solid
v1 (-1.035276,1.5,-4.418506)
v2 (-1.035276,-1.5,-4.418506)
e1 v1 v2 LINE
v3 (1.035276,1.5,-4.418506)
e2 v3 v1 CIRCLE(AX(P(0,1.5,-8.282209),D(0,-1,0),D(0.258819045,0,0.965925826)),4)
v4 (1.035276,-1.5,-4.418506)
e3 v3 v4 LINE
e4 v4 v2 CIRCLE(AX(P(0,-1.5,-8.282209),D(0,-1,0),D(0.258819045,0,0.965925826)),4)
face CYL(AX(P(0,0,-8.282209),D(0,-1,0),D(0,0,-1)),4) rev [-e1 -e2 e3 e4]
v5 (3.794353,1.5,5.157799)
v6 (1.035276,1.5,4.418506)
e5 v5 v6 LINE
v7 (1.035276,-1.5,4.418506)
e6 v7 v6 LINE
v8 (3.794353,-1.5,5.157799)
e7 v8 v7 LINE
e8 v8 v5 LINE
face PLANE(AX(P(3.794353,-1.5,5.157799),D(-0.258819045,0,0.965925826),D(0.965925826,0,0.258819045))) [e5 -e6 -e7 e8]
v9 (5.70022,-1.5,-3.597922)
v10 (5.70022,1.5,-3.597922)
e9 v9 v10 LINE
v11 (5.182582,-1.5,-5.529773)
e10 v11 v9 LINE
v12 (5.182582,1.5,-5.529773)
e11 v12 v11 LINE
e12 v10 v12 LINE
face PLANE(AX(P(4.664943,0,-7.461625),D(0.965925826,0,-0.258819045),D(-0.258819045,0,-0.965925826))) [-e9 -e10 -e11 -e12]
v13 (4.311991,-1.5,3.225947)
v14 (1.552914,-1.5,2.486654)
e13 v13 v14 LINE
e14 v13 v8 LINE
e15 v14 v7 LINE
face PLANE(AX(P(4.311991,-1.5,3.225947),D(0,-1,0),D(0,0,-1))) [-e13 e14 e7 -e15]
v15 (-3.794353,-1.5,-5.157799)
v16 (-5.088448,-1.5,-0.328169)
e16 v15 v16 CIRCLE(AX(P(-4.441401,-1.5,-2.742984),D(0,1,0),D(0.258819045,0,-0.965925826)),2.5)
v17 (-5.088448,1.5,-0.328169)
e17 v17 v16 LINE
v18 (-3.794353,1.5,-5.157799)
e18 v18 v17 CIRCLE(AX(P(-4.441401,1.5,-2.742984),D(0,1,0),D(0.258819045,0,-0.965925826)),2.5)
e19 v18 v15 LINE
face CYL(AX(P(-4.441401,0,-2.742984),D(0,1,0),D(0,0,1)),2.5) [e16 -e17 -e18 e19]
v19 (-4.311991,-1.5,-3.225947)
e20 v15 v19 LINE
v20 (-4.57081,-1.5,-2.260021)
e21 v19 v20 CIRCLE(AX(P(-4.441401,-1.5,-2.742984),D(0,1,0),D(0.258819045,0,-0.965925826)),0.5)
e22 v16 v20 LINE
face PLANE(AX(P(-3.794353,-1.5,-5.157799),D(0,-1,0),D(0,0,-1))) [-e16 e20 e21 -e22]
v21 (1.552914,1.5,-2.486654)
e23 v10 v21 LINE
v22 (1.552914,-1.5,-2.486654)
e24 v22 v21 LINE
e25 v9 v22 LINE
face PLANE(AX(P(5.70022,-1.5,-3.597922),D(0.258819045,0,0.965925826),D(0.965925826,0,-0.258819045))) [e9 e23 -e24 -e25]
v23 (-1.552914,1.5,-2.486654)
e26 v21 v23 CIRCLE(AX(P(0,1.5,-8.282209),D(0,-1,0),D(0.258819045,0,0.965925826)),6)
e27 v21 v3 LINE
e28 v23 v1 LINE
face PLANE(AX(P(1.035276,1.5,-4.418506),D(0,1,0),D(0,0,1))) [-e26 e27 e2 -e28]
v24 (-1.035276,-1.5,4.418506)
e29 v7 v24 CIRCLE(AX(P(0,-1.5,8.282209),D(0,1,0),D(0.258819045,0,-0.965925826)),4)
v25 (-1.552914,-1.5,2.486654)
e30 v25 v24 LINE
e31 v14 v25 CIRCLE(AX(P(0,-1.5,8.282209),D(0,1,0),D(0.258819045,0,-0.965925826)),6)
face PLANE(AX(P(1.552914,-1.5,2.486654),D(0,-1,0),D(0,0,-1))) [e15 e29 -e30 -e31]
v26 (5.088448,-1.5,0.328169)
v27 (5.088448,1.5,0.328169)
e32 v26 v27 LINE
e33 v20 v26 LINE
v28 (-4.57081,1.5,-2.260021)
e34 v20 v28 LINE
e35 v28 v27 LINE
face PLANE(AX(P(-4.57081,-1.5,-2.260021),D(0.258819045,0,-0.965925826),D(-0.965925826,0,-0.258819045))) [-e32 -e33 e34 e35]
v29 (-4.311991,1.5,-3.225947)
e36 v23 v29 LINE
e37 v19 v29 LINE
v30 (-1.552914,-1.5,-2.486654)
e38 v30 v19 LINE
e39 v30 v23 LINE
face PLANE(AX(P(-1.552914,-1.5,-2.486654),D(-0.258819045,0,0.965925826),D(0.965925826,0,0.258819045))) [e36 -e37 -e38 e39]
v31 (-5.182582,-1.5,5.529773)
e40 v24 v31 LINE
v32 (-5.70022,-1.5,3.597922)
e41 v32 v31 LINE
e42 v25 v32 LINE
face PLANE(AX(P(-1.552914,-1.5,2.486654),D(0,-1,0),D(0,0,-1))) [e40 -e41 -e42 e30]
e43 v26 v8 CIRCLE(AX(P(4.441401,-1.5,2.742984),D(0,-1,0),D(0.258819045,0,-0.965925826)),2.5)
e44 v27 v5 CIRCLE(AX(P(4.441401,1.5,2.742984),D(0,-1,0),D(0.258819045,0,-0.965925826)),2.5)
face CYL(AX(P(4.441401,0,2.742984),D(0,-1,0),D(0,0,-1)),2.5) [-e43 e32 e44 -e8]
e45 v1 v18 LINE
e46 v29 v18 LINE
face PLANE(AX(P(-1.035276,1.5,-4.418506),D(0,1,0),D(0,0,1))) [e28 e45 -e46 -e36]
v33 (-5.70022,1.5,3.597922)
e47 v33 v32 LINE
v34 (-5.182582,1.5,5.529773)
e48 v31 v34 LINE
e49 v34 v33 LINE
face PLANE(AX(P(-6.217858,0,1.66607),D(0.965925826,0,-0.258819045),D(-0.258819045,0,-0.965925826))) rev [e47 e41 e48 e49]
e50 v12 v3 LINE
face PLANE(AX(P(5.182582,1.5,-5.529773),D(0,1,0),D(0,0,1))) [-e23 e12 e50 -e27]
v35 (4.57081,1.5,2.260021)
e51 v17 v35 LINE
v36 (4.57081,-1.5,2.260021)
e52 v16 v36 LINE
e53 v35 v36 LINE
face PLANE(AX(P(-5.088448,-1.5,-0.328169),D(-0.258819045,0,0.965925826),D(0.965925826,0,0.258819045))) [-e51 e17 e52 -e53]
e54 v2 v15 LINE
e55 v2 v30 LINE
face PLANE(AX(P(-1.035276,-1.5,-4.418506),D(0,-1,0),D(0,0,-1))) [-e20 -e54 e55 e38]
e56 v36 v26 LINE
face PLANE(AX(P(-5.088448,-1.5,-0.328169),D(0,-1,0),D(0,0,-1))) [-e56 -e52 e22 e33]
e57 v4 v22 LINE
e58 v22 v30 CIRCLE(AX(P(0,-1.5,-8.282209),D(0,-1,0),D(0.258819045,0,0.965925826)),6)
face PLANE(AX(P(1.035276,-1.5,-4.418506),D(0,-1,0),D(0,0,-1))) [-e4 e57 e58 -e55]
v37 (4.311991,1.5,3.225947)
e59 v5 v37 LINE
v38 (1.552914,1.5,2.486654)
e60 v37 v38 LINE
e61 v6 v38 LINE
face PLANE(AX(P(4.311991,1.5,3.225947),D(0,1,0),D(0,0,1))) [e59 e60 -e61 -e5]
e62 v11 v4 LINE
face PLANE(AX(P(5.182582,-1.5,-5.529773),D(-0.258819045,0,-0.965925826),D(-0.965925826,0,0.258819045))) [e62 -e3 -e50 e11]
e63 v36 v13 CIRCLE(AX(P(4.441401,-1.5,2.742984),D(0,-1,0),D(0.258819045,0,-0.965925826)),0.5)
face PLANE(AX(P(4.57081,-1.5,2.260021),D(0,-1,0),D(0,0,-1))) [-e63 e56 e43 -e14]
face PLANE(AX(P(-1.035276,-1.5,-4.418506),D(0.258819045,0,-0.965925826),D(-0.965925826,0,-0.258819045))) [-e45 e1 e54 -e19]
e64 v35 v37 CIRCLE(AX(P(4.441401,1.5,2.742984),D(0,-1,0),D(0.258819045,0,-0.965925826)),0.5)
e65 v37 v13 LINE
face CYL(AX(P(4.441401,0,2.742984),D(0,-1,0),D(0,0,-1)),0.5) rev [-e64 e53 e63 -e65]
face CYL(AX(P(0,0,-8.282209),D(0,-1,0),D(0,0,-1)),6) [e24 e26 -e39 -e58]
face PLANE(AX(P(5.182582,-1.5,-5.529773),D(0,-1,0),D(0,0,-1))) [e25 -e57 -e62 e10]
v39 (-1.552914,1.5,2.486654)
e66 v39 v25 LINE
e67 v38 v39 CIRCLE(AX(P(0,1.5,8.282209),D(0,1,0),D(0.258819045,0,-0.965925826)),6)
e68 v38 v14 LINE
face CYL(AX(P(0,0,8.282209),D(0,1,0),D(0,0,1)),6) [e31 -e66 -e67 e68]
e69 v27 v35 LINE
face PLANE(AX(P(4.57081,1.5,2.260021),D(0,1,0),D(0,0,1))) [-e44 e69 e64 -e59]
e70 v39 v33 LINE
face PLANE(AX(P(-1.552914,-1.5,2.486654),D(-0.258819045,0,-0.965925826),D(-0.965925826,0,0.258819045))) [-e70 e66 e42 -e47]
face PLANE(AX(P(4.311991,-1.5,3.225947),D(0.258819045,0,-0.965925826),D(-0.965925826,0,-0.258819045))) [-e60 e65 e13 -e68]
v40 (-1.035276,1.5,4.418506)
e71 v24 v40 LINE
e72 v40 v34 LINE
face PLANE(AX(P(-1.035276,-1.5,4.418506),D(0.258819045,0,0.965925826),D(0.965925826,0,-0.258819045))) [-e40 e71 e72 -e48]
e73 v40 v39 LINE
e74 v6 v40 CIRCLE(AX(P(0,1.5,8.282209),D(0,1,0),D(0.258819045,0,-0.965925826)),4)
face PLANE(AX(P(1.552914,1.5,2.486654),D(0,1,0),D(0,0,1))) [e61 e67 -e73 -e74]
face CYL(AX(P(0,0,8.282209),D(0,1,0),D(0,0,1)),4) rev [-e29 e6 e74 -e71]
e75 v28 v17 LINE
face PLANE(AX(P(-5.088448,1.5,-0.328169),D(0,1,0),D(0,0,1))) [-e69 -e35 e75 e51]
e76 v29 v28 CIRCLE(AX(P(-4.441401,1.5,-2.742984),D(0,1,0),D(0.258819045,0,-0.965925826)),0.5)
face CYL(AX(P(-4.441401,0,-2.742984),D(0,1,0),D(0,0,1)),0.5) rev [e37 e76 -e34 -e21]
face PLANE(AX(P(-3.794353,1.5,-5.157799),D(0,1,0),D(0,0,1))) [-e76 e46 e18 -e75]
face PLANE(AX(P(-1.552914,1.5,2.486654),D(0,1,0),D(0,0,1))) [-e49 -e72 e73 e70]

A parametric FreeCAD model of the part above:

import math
import FreeCAD as App
import Part
import Sketcher
from FreeCAD import Vector
Q = App.Units.Quantity

doc = App.newDocument("Part")
body = doc.addObject("PartDesign::Body", "Body")

sketch1 = body.newObject("Sketcher::SketchObject", "Sketch")
sketch1.Placement = App.Placement(Vector(-5.441401, 0, 4.563847), App.Rotation(Vector(0.258819045, 0, 0.965925826), Vector(0, 0.999999999, 0), Vector(-0.965925826, 0, 0.258819045), "ZXY"))
sketch1.addGeometry([
    Part.LineSegment(Vector(-1, 1.5, 0), Vector(-1, -1.5, 0)),
    Part.LineSegment(Vector(-1, -1.5, 0), Vector(1, -1.5, 0)),
    Part.LineSegment(Vector(1, -1.5, 0), Vector(1, 1.5, 0)),
    Part.LineSegment(Vector(1, 1.5, 0), Vector(-1, 1.5, 0)),
], False)
sketch1.addConstraint([
    Sketcher.Constraint("Coincident", 0, 2, 1, 1),
    Sketcher.Constraint("Coincident", 1, 2, 2, 1),
    Sketcher.Constraint("Coincident", 2, 2, 3, 1),
    Sketcher.Constraint("Coincident", 3, 2, 0, 1),
    Sketcher.Constraint("Vertical", 0),
    Sketcher.Constraint("Horizontal", 1),
    Sketcher.Constraint("Vertical", 2),
    Sketcher.Constraint("Horizontal", 3),
    Sketcher.Constraint("Symmetric", 0, 2, 2, 2, -1, 1),
    Sketcher.Constraint("DistanceX", 1, 1, 1, 2, Q("2 mm")),
    Sketcher.Constraint("DistanceY", 0, 2, 0, 1, Q("3 mm")),
])

sketch2 = body.newObject("Sketcher::SketchObject", "Sketch001")
sketch2.AttachmentSupport = (doc.getObject("XZ_Plane"), [""])
sketch2.MapMode = "FlatFace"
sketch2.addGeometry([
    Part.LineSegment(Vector(5.4, -4.6, 0), Vector(1.3, -3.5, 0)),
    Part.ArcOfCircle(Part.Circle(Vector(0, -8.3, 0), Vector(0, 0, 1), 5), math.radians(75), math.radians(105)),
    Part.LineSegment(Vector(-1.3, -3.5, 0), Vector(-4.1, -4.2, 0)),
    Part.ArcOfCircle(Part.Circle(Vector(-4.4, -2.7, 0), Vector(0, 0, 1), 1.5), math.radians(105), math.radians(285)),
    Part.LineSegment(Vector(-4.8, -1.3, 0), Vector(4.8, 1.3, 0)),
    Part.ArcOfCircle(Part.Circle(Vector(4.4, 2.7, 0), Vector(0, 0, 1), 1.5), math.radians(-75), math.radians(105)),
    Part.LineSegment(Vector(4.1, 4.2, 0), Vector(1.3, 3.5, 0)),
    Part.ArcOfCircle(Part.Circle(Vector(0, 8.3, 0), Vector(0, 0, 1), 5), math.radians(-105), math.radians(-75)),
    Part.LineSegment(Vector(-1.3, 3.5, 0), Vector(-5.4, 4.6, 0)),
], False)
sketch2.addConstraint([
    Sketcher.Constraint("Tangent", 0, 2, 1, 1),
    Sketcher.Constraint("Tangent", 1, 2, 2, 1),
    Sketcher.Constraint("Tangent", 2, 2, 3, 2),
    Sketcher.Constraint("Tangent", 3, 1, 4, 1),
    Sketcher.Constraint("Tangent", 4, 2, 5, 1),
    Sketcher.Constraint("Tangent", 5, 2, 6, 1),
    Sketcher.Constraint("Tangent", 6, 2, 7, 2),
    Sketcher.Constraint("Tangent", 7, 1, 8, 1),
    Sketcher.Constraint("Equal", 3, 5),
    Sketcher.Constraint("Equal", 1, 7),
    Sketcher.Constraint("Symmetric", 3, 3, 5, 3, -1, 1),
    Sketcher.Constraint("Symmetric", 1, 3, 7, 3, -1, 1),
    Sketcher.Constraint("Symmetric", 0, 1, 8, 2, -1, 1),
    Sketcher.Constraint("Symmetric", 0, 2, 1, 2, -2),
    Sketcher.Constraint("Parallel", 2, 4),
    Sketcher.Constraint("Radius", 1, Q("5 mm")),
    Sketcher.Constraint("Radius", 3, Q("1.5 mm")),
    Sketcher.Constraint("Angle", 0, Q("165 deg")),
    Sketcher.Constraint("Distance", 4, Q("10 mm")),
    Sketcher.Constraint("DistanceX", 5, 3, 0, 1, Q("1 mm")),
])
doc.recompute()

additivepipe = body.newObject("PartDesign::AdditivePipe", "AdditivePipe")
additivepipe.Profile = sketch1
additivepipe.Spine = (sketch2, ["Edge1", "Edge2", "Edge3", "Edge4", "Edge5", "Edge6", "Edge7", "Edge8", "Edge9"])

doc.recompute()
